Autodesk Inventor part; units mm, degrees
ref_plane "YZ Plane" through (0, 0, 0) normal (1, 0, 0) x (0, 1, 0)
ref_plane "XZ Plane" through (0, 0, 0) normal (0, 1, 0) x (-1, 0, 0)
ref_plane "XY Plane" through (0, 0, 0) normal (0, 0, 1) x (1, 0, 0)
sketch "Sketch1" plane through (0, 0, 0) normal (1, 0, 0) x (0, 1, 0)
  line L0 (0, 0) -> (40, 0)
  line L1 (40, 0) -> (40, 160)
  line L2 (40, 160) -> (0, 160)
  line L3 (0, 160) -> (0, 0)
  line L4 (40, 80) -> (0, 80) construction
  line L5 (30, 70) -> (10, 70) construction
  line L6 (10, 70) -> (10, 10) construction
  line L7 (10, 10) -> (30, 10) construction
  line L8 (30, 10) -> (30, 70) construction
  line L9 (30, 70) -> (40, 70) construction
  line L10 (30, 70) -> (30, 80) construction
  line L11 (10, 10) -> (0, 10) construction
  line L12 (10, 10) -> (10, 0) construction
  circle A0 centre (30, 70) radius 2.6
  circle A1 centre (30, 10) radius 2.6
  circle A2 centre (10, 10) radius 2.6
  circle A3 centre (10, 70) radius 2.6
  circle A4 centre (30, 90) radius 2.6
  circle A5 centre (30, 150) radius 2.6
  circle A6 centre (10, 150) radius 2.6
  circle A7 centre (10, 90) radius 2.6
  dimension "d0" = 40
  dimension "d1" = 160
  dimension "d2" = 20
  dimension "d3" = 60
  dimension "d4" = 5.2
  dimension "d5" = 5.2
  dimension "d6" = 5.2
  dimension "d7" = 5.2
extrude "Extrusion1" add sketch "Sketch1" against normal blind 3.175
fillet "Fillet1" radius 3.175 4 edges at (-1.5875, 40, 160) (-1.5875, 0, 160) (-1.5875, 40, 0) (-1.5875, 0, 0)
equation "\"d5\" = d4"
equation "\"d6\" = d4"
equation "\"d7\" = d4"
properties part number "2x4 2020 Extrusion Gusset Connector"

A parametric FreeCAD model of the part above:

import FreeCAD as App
import Part
import Sketcher

V = App.Vector
Q = App.Units.Quantity


def edges_at(feature, points):
    """Names of the edges that pass closest to the given points."""
    edges = feature.Shape.Edges
    near = lambda p: min(range(len(edges)), key=lambda i: edges[i].distToShape(Part.Vertex(*p))[0])
    return sorted({f"Edge{near(p) + 1}" for p in points})


def add_polygon(sketch, points):
    """Adds a closed chain of lines whose ends are joined by coincident constraints."""
    first, n = sketch.GeometryCount, len(points)
    for a, b in zip(points, points[1:] + points[:1]):
        sketch.addGeometry(Part.LineSegment(App.Vector(*a, 0), App.Vector(*b, 0)), False)
    for i in range(n):
        sketch.addConstraint(Sketcher.Constraint("Coincident", first + i, 2, first + (i + 1) % n, 1))

doc = App.newDocument("Part")
body = doc.addObject("PartDesign::Body", "Body")

# Sketch on YZ plane
sketch1 = doc.addObject("Sketcher::SketchObject", "Sketch")
body.addObject(sketch1)
sketch1.AttachmentSupport = (doc.YZ_Plane, [""])
sketch1.MapMode = "FlatFace"
add_polygon(sketch1, [(0, 160), (0, 0), (40, 0), (40, 160)])  # lines 0-3
sketch1.addGeometry(Part.Circle(V(10, 10, 0), V(0, 0, 1), 2.6), False)  # 4
sketch1.addGeometry(Part.Circle(V(10, 70, 0), V(0, 0, 1), 2.6), False)  # 5
sketch1.addGeometry(Part.Circle(V(30, 10, 0), V(0, 0, 1), 2.6), False)  # 6
sketch1.addGeometry(Part.Circle(V(30, 70, 0), V(0, 0, 1), 2.6), False)  # 7
sketch1.addGeometry(Part.Circle(V(10, 90, 0), V(0, 0, 1), 2.6), False)  # 8
sketch1.addGeometry(Part.Circle(V(10, 150, 0), V(0, 0, 1), 2.6), False)  # 9
sketch1.addGeometry(Part.Circle(V(30, 90, 0), V(0, 0, 1), 2.6), False)  # 10
sketch1.addGeometry(Part.Circle(V(30, 150, 0), V(0, 0, 1), 2.6), False)  # 11
sketch1.addConstraint([
    Sketcher.Constraint("Vertical", 0),
    Sketcher.Constraint("Horizontal", 1),
    Sketcher.Constraint("Vertical", 2),
    Sketcher.Constraint("Horizontal", 3),
    Sketcher.Constraint("Coincident", 0, 2, -1, 1),
    Sketcher.Constraint("Equal", 4, 5),
    Sketcher.Constraint("Equal", 5, 6),
    Sketcher.Constraint("Equal", 6, 7),
    Sketcher.Constraint("Equal", 7, 8),
    Sketcher.Constraint("Equal", 8, 9),
    Sketcher.Constraint("Equal", 9, 10),
    Sketcher.Constraint("Equal", 10, 11),
    Sketcher.Constraint("Horizontal", 4, 3, 6, 3),
    Sketcher.Constraint("Horizontal", 5, 3, 7, 3),
    Sketcher.Constraint("Horizontal", 8, 3, 10, 3),
    Sketcher.Constraint("Horizontal", 9, 3, 11, 3),
    Sketcher.Constraint("Vertical", 4, 3, 5, 3),
    Sketcher.Constraint("Vertical", 6, 3, 7, 3),
    Sketcher.Constraint("Vertical", 5, 3, 8, 3),
    Sketcher.Constraint("Vertical", 8, 3, 9, 3),
    Sketcher.Constraint("Vertical", 7, 3, 10, 3),
    Sketcher.Constraint("Vertical", 10, 3, 11, 3),
    Sketcher.Constraint("Diameter", 4, Q("5.2 mm")),
    Sketcher.Constraint("DistanceX", 1, 1, 1, 2, Q("40 mm")),
    Sketcher.Constraint("DistanceY", 0, 2, 0, 1, Q("160 mm")),
    Sketcher.Constraint("DistanceY", 4, 3, 5, 3, Q("60 mm")),
    Sketcher.Constraint("DistanceX", 4, 3, 6, 3, Q("20 mm")),
    Sketcher.Constraint("DistanceY", 5, 3, 8, 3, Q("20 mm")),
    Sketcher.Constraint("DistanceY", 8, 3, 9, 3, Q("60 mm")),
    Sketcher.Constraint("DistanceX", -1, 1, 4, 3, Q("10 mm")),
    Sketcher.Constraint("DistanceY", -1, 1, 4, 3, Q("10 mm")),
])
pad1 = doc.addObject("PartDesign::Pad", "Pad")
body.addObject(pad1)
pad1.Profile = sketch1
pad1.Length = 3.175
pad1.Reversed = True
doc.recompute()

fillet = doc.addObject("PartDesign::Fillet", "Fillet")
body.addObject(fillet)
fillet.Base = (pad1, edges_at(pad1, [
    (-1.587, 40, 160),
    (-1.587, 0, 160),
    (-1.587, 40, 0),
    (-1.587, 0, 0),
]))
fillet.Radius = 3.175

doc.recompute()
